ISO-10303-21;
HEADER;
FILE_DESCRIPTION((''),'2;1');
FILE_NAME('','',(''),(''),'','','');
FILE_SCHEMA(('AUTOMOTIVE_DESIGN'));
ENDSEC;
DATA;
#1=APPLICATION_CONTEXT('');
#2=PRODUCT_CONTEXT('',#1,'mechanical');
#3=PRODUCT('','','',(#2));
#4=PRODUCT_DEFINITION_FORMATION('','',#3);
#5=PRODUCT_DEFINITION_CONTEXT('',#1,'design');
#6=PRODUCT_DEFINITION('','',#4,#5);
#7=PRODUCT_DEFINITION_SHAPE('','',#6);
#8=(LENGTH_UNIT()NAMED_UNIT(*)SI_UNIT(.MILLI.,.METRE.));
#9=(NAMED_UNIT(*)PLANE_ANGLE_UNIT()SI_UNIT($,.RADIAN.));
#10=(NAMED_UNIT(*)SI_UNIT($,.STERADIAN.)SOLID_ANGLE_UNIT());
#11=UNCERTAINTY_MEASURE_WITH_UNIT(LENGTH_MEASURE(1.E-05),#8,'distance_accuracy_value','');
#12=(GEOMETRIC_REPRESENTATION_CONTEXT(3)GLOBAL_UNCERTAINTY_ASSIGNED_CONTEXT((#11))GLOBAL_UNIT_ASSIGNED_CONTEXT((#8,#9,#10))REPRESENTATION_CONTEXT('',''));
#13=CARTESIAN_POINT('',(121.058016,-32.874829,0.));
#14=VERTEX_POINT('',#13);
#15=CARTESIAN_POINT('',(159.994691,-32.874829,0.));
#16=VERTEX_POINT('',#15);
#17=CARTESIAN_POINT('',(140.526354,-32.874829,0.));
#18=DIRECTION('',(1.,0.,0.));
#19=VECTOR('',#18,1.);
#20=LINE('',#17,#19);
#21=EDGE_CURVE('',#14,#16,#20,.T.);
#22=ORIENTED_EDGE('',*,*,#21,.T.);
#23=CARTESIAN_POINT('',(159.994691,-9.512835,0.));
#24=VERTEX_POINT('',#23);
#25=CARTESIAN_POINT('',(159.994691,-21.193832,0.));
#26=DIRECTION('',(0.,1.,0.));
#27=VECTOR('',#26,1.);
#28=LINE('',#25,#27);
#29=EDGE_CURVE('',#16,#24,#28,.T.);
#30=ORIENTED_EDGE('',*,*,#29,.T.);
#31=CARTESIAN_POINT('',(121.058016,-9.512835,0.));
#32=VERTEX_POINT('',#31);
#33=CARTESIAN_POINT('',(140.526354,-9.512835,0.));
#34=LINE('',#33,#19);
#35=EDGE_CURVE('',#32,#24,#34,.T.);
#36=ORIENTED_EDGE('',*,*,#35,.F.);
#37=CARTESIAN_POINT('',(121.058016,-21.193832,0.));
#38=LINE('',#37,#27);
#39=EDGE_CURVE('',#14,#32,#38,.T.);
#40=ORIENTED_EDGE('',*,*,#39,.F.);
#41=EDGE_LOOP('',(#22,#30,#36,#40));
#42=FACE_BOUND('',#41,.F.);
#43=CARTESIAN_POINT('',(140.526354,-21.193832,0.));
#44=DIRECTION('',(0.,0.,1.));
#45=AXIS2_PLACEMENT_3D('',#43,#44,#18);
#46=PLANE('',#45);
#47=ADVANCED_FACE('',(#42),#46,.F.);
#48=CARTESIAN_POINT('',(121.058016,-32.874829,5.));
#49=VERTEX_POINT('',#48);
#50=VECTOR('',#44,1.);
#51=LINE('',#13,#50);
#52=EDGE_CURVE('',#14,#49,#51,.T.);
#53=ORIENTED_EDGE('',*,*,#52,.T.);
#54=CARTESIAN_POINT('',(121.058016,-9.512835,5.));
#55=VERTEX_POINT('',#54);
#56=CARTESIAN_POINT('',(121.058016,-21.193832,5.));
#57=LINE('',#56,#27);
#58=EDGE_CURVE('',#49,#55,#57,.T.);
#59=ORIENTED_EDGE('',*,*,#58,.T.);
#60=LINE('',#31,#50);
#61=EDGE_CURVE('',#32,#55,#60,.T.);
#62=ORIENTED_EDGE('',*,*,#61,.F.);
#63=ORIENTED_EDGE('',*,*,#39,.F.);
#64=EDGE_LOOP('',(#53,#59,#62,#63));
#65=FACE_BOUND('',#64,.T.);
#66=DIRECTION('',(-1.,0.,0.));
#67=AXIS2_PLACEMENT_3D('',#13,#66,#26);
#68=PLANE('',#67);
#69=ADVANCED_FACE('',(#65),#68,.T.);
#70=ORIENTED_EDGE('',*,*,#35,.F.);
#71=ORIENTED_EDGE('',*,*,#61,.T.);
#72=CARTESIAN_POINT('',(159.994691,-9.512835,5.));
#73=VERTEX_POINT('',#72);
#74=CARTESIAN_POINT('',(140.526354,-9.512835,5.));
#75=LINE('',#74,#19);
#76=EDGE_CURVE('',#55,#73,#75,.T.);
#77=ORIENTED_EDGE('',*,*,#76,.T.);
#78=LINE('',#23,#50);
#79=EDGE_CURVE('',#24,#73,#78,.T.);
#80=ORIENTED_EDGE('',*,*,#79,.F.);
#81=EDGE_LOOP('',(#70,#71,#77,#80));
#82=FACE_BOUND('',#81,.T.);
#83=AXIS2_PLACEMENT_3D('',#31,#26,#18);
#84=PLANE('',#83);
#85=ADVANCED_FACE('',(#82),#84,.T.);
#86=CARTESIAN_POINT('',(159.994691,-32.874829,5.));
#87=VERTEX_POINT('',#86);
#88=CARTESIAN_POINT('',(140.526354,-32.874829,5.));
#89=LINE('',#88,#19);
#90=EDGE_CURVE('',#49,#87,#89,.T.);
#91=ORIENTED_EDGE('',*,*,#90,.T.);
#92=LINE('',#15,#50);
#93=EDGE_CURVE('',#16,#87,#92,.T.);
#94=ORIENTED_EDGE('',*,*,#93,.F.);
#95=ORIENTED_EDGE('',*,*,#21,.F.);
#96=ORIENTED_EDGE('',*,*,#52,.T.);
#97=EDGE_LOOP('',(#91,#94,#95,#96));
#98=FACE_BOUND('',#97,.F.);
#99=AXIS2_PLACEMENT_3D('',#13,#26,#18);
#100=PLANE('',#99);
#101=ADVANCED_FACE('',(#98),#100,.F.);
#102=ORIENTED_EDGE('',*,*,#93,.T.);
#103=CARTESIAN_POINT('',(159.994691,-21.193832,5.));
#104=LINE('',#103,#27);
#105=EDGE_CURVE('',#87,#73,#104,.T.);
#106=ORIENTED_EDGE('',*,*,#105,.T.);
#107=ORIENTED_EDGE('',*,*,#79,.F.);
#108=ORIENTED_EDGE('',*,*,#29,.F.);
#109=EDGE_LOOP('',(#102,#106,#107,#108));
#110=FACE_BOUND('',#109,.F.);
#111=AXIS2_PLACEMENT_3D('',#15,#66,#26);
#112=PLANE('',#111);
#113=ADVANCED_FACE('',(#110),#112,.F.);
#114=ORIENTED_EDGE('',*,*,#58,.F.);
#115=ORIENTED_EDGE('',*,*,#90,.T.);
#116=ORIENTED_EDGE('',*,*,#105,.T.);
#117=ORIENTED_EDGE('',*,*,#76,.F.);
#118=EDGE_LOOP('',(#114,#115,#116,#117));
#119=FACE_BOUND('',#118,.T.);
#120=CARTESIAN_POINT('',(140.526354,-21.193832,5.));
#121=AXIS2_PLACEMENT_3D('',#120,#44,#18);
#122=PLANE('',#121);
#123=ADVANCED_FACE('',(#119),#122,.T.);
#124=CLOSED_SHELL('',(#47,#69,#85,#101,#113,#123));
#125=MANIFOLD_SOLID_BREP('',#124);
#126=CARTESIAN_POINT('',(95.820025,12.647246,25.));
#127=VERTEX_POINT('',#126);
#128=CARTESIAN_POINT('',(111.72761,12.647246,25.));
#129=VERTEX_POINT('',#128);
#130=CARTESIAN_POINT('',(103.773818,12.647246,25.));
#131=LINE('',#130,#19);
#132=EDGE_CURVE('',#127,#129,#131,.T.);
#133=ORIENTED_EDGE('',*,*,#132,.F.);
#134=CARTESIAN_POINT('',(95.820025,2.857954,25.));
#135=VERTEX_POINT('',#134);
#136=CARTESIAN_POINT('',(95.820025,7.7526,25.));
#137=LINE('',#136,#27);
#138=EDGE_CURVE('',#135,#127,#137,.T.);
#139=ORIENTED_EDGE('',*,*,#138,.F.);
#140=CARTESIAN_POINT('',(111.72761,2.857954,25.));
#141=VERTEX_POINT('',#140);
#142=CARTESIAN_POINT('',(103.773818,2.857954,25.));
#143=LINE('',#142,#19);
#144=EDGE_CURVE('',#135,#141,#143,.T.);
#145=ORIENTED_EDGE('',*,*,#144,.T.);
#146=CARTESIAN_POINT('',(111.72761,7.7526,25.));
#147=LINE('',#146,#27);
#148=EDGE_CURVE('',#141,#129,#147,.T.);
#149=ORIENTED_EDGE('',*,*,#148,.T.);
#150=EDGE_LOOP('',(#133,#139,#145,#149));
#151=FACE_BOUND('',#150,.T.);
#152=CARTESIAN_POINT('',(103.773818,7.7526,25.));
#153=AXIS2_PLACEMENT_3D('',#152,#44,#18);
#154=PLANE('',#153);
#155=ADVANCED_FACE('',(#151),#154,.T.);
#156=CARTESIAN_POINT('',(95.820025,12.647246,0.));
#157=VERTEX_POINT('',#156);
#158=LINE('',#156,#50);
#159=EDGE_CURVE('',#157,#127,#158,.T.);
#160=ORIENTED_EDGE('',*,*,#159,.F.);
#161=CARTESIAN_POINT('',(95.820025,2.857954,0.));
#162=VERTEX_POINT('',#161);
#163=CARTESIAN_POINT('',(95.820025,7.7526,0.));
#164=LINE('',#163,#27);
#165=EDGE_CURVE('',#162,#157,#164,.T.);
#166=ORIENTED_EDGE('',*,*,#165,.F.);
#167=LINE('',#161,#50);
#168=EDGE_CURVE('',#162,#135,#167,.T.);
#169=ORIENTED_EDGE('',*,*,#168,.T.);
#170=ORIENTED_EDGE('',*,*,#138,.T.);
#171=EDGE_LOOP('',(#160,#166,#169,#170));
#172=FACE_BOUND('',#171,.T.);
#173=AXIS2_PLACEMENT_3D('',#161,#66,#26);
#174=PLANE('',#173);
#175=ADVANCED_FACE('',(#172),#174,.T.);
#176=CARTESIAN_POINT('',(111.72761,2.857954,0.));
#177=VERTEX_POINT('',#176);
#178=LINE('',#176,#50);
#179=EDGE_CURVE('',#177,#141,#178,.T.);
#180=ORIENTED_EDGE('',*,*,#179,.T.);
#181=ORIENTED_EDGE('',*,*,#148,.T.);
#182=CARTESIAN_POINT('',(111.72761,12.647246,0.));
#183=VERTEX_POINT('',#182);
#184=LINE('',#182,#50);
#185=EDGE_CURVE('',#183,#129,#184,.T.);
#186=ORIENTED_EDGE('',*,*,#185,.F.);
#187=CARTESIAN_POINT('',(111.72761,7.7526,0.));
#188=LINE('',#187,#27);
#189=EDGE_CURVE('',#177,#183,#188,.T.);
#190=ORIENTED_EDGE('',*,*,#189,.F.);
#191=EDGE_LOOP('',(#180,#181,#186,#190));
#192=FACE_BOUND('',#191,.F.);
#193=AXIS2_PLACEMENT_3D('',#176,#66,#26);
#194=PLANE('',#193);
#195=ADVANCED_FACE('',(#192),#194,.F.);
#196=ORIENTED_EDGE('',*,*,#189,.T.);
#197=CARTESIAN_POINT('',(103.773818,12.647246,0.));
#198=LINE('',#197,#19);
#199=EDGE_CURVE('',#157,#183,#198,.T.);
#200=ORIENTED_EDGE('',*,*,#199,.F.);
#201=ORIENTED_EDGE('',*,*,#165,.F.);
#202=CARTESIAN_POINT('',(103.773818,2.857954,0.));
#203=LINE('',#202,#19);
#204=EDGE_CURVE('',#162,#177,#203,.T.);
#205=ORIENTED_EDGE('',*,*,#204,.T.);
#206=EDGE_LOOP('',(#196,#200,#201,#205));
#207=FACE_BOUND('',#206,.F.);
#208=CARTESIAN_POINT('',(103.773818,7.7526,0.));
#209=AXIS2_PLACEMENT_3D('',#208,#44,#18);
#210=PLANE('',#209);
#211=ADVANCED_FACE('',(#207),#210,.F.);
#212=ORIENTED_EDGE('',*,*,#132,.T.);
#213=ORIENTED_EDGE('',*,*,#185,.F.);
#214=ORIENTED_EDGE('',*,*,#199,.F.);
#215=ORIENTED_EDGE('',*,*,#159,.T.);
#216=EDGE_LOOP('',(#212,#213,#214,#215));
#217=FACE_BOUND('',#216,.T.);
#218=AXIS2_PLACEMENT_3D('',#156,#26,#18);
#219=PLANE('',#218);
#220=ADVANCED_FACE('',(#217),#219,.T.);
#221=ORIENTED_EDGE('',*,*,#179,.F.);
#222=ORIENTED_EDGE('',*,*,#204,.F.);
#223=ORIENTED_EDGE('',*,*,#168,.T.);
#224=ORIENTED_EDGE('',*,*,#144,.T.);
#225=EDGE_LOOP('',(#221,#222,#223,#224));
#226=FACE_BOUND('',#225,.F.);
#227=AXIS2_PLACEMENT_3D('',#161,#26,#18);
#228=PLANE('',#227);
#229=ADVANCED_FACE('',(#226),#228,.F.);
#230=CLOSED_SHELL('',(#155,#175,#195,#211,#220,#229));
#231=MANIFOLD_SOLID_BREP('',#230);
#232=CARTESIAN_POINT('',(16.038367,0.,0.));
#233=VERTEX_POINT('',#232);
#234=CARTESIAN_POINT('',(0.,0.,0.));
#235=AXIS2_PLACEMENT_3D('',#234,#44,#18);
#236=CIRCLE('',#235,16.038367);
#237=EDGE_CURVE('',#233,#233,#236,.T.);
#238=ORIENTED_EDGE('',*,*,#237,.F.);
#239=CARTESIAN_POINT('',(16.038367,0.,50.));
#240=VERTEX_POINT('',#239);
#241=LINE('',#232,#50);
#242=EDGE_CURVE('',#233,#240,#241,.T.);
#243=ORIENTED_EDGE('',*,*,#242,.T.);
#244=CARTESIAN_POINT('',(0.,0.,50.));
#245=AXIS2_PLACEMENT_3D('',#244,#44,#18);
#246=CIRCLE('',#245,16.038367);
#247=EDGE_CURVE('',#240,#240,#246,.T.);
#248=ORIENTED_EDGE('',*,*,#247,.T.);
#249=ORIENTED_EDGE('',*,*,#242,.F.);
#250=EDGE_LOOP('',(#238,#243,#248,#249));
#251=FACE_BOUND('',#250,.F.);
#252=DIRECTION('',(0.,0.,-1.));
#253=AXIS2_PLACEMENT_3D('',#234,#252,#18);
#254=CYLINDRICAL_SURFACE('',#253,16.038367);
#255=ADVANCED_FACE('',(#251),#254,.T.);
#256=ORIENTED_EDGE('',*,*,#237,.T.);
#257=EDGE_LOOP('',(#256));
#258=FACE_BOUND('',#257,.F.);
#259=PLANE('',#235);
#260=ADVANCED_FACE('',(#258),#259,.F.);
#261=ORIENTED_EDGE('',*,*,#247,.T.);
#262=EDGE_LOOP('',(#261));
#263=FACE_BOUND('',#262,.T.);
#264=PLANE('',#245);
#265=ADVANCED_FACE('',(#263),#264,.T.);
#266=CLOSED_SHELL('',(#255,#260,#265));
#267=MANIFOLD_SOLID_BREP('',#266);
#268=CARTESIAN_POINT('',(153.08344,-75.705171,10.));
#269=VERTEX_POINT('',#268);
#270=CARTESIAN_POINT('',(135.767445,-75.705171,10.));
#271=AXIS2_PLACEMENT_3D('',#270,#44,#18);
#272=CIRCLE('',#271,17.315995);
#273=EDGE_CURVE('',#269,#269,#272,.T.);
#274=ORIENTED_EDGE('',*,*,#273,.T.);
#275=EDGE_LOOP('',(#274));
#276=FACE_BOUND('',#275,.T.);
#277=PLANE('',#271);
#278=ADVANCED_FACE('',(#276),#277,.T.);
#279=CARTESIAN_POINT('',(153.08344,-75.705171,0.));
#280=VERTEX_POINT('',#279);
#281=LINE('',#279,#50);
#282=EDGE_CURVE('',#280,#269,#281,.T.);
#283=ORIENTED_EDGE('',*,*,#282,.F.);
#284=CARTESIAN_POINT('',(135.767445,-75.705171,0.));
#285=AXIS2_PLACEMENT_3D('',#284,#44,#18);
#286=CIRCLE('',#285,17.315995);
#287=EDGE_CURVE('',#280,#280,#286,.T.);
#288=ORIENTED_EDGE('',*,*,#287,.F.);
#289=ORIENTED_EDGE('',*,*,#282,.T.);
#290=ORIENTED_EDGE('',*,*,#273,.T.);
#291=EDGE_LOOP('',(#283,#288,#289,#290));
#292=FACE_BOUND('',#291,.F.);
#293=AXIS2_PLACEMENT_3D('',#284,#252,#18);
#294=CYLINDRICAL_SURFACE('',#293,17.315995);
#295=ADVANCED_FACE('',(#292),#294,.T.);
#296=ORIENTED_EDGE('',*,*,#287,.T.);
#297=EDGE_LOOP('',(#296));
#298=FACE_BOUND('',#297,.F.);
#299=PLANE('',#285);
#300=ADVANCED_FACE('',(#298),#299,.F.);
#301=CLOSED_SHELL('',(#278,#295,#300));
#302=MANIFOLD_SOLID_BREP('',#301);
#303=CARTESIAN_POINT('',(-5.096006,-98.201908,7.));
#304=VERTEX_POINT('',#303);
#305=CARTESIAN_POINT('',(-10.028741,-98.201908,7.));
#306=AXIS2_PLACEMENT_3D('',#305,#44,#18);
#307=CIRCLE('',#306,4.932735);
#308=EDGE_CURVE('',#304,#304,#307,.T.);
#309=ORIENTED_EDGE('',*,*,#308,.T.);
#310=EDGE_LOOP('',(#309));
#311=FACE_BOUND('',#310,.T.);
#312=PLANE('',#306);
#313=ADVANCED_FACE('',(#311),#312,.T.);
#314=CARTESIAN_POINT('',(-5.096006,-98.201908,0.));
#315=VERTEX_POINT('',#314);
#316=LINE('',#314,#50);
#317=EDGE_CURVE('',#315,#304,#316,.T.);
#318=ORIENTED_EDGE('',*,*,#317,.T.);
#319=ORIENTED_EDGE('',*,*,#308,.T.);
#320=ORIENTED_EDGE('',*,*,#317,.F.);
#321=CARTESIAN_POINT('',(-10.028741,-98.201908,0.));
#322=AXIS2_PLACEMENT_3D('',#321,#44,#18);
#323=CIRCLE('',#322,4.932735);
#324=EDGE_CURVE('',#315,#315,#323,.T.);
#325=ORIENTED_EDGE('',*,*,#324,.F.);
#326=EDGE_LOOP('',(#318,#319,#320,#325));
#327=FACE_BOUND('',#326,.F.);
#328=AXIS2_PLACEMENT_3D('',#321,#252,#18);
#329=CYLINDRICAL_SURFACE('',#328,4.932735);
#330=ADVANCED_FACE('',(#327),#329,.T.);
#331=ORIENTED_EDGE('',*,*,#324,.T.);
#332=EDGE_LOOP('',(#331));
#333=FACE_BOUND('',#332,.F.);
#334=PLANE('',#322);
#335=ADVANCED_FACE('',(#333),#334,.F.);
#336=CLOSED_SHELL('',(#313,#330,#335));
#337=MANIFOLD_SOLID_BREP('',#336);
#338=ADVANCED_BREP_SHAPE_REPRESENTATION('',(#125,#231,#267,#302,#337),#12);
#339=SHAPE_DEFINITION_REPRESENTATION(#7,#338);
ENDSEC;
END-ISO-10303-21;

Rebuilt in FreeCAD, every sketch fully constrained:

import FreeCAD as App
import Part
import Sketcher
Q = App.Units.Quantity


def add_polygon(sketch, points):
    """Adds a closed chain of lines whose ends are joined by coincident constraints."""
    first, n = sketch.GeometryCount, len(points)
    for a, b in zip(points, points[1:] + points[:1]):
        sketch.addGeometry(Part.LineSegment(App.Vector(*a, 0), App.Vector(*b, 0)), False)
    for i in range(n):
        sketch.addConstraint(Sketcher.Constraint("Coincident", first + i, 2, first + (i + 1) % n, 1))

doc = App.newDocument("Part")
body = doc.addObject("PartDesign::Body", "Body")

sketch1 = body.newObject("Sketcher::SketchObject", "Sketch")
sketch1.AttachmentSupport = (doc.getObject("XY_Plane"), [""])
sketch1.MapMode = "FlatFace"
sketch1.addGeometry(Part.Circle(App.Vector(0, 0, 0), App.Vector(0, 0, 1), 16), False)
sketch1.addConstraint(Sketcher.Constraint("Coincident", 0, 3, -1, 1))
sketch1.addConstraint(Sketcher.Constraint("Diameter", 0, Q("32.076734 mm")))
pad1 = body.newObject("PartDesign::Pad", "Pad")
pad1.Profile = sketch1
pad1.Length = 50
body2 = doc.addObject("PartDesign::Body", "Body001")

sketch2 = body2.newObject("Sketcher::SketchObject", "Sketch001")
sketch2.AttachmentSupport = (doc.getObject("XY_Plane001"), [""])
sketch2.MapMode = "FlatFace"
sketch2.addGeometry(Part.Circle(App.Vector(136, -76, 0), App.Vector(0, 0, 1), 17), False)
sketch2.addConstraint(Sketcher.Constraint("Diameter", 0, Q("34.63199 mm")))
sketch2.addConstraint(Sketcher.Constraint("DistanceY", 0, 3, -1, 1, Q("75.705171 mm")))
sketch2.addConstraint(Sketcher.Constraint("DistanceX", -1, 1, 0, 3, Q("135.767445 mm")))
pad2 = body2.newObject("PartDesign::Pad", "Pad001")
pad2.Profile = sketch2
pad2.Length = 10
body3 = doc.addObject("PartDesign::Body", "Body002")

sketch3 = body3.newObject("Sketcher::SketchObject", "Sketch002")
sketch3.AttachmentSupport = (doc.getObject("XY_Plane002"), [""])
sketch3.MapMode = "FlatFace"
sketch3.addGeometry(Part.Circle(App.Vector(-10, -98.2, 0), App.Vector(0, 0, 1), 4.9), False)
sketch3.addConstraint(Sketcher.Constraint("Diameter", 0, Q("9.86547 mm")))
sketch3.addConstraint(Sketcher.Constraint("DistanceX", 0, 3, -1, 1, Q("10.028741 mm")))
sketch3.addConstraint(Sketcher.Constraint("DistanceY", 0, 3, -1, 1, Q("98.201908 mm")))
pad3 = body3.newObject("PartDesign::Pad", "Pad002")
pad3.Profile = sketch3
pad3.Length = 7
body4 = doc.addObject("PartDesign::Body", "Body003")

sketch4 = body4.newObject("Sketcher::SketchObject", "Sketch003")
sketch4.AttachmentSupport = (doc.getObject("XY_Plane003"), [""])
sketch4.MapMode = "FlatFace"
add_polygon(sketch4, [(121, -10), (121, -33), (160, -33), (160, -10)])
sketch4.addConstraint(Sketcher.Constraint("Vertical", 0))
sketch4.addConstraint(Sketcher.Constraint("Horizontal", 1))
sketch4.addConstraint(Sketcher.Constraint("Vertical", 2))
sketch4.addConstraint(Sketcher.Constraint("Horizontal", 3))
sketch4.addConstraint(Sketcher.Constraint("DistanceX", 1, 1, 1, 2, Q("38.936675 mm")))
sketch4.addConstraint(Sketcher.Constraint("DistanceY", 0, 2, 0, 1, Q("23.361994 mm")))
sketch4.addConstraint(Sketcher.Constraint("DistanceY", 0, 2, -1, 1, Q("32.874829 mm")))
sketch4.addConstraint(Sketcher.Constraint("DistanceX", -1, 1, 1, 2, Q("159.994691 mm")))
pad4 = body4.newObject("PartDesign::Pad", "Pad003")
pad4.Profile = sketch4
pad4.Length = 5
body5 = doc.addObject("PartDesign::Body", "Body004")

sketch5 = body5.newObject("Sketcher::SketchObject", "Sketch004")
sketch5.AttachmentSupport = (doc.getObject("XY_Plane004"), [""])
sketch5.MapMode = "FlatFace"
add_polygon(sketch5, [(96, 13), (96, 3), (112, 3), (112, 13)])
sketch5.addConstraint(Sketcher.Constraint("Vertical", 0))
sketch5.addConstraint(Sketcher.Constraint("Horizontal", 1))
sketch5.addConstraint(Sketcher.Constraint("Vertical", 2))
sketch5.addConstraint(Sketcher.Constraint("Horizontal", 3))
sketch5.addConstraint(Sketcher.Constraint("DistanceX", 1, 1, 1, 2, Q("15.907585 mm")))
sketch5.addConstraint(Sketcher.Constraint("DistanceY", 0, 2, 0, 1, Q("9.789292 mm")))
sketch5.addConstraint(Sketcher.Constraint("DistanceX", -1, 1, 1, 2, Q("111.72761 mm")))
sketch5.addConstraint(Sketcher.Constraint("DistanceY", -1, 1, 0, 2, Q("2.857954 mm")))
pad5 = body5.newObject("PartDesign::Pad", "Pad004")
pad5.Profile = sketch5
pad5.Length = 25

doc.recompute()
